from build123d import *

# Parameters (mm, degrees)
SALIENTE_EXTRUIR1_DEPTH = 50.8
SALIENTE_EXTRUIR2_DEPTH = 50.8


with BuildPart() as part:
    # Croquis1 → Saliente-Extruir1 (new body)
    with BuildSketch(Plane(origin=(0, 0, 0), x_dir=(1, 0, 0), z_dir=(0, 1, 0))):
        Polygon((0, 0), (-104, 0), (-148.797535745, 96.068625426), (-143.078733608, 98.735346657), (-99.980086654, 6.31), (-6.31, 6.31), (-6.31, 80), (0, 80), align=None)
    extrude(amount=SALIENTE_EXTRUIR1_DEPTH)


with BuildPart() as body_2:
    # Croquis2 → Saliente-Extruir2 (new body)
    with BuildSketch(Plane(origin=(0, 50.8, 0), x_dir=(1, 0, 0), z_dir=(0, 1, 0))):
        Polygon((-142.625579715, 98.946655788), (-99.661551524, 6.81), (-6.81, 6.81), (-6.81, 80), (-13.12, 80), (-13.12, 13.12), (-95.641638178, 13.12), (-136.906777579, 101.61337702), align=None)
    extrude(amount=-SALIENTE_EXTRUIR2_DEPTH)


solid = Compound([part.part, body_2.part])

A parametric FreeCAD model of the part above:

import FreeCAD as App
import Part
import Sketcher
from FreeCAD import Vector
Q = App.Units.Quantity

doc = App.newDocument("Part")
body = doc.addObject("PartDesign::Body", "Body")

sketch1 = body.newObject("Sketcher::SketchObject", "Sketch")
sketch1.AttachmentSupport = (doc.getObject("XZ_Plane"), [""])
sketch1.MapMode = "FlatFace"
sketch1.addGeometry(Part.LineSegment(Vector(-104, 0, 0), Vector(0, 0, 0)), False)
sketch1.addGeometry(Part.LineSegment(Vector(0, 0, 0), Vector(0, -80, 0)), False)
sketch1.addGeometry(Part.LineSegment(Vector(0, -80, 0), Vector(-6, -80, 0)), False)
sketch1.addGeometry(Part.LineSegment(Vector(-6, -80, 0), Vector(-6, -6, 0)), False)
sketch1.addGeometry(Part.LineSegment(Vector(-6, -6, 0), Vector(-100, -6, 0)), False)
sketch1.addGeometry(Part.LineSegment(Vector(-100, -6, 0), Vector(-143, -99, 0)), False)
sketch1.addGeometry(Part.LineSegment(Vector(-143, -99, 0), Vector(-149, -96, 0)), False)
sketch1.addGeometry(Part.LineSegment(Vector(-149, -96, 0), Vector(-104, 0, 0)), False)
sketch1.addConstraint(Sketcher.Constraint("Coincident", 0, 2, 1, 1))
sketch1.addConstraint(Sketcher.Constraint("Coincident", 1, 2, 2, 1))
sketch1.addConstraint(Sketcher.Constraint("Coincident", 2, 2, 3, 1))
sketch1.addConstraint(Sketcher.Constraint("Coincident", 3, 2, 4, 1))
sketch1.addConstraint(Sketcher.Constraint("Coincident", 4, 2, 5, 1))
sketch1.addConstraint(Sketcher.Constraint("Coincident", 5, 2, 6, 1))
sketch1.addConstraint(Sketcher.Constraint("Coincident", 6, 2, 7, 1))
sketch1.addConstraint(Sketcher.Constraint("Coincident", 7, 2, 0, 1))
sketch1.addConstraint(Sketcher.Constraint("Horizontal", 0))
sketch1.addConstraint(Sketcher.Constraint("Vertical", 1))
sketch1.addConstraint(Sketcher.Constraint("Horizontal", 2))
sketch1.addConstraint(Sketcher.Constraint("Vertical", 3))
sketch1.addConstraint(Sketcher.Constraint("Horizontal", 4))
sketch1.addConstraint(Sketcher.Constraint("Coincident", 0, 2, -1, 1))
sketch1.addConstraint(Sketcher.Constraint("Perpendicular", 5, 6))
sketch1.addConstraint(Sketcher.Constraint("Perpendicular", 6, 7))
sketch1.addConstraint(Sketcher.Constraint("DistanceX", 0, 1, 0, 2, 104.0))
sketch1.addConstraint(Sketcher.Constraint("DistanceY", 1, 2, 1, 1, 80.0))
sketch1.addConstraint(Sketcher.Constraint("Angle", 5, Q("-115 deg")))
sketch1.addConstraint(Sketcher.Constraint("Distance", 7, 106.0))
sketch1.addConstraint(Sketcher.Constraint("DistanceX", 2, 2, 2, 1, 6.31))
sketch1.addConstraint(Sketcher.Constraint("DistanceY", 3, 1, 3, 2, 73.69))
sketch1.addConstraint(Sketcher.Constraint("Distance", 6, 6.31))
pad1 = body.newObject("PartDesign::Pad", "Pad")
pad1.Profile = sketch1
pad1.Length = 50.8
pad1.Reversed = True
body2 = doc.addObject("PartDesign::Body", "Body001")

sketch2 = body2.newObject("Sketcher::SketchObject", "Sketch001")
sketch2.AttachmentSupport = (doc.getObject("XZ_Plane001"), [""])
sketch2.MapMode = "FlatFace"
sketch2.AttachmentOffset = App.Placement(Vector(0, 0, -50.8), App.Rotation())
sketch2.addGeometry(Part.LineSegment(Vector(-143, -99, 0), Vector(-100, -7, 0)), False)
sketch2.addGeometry(Part.LineSegment(Vector(-100, -7, 0), Vector(-7, -7, 0)), False)
sketch2.addGeometry(Part.LineSegment(Vector(-7, -7, 0), Vector(-7, -80, 0)), False)
sketch2.addGeometry(Part.LineSegment(Vector(-7, -80, 0), Vector(-13, -80, 0)), False)
sketch2.addGeometry(Part.LineSegment(Vector(-13, -80, 0), Vector(-13, -13, 0)), False)
sketch2.addGeometry(Part.LineSegment(Vector(-13, -13, 0), Vector(-96, -13, 0)), False)
sketch2.addGeometry(Part.LineSegment(Vector(-96, -13, 0), Vector(-137, -102, 0)), False)
sketch2.addGeometry(Part.LineSegment(Vector(-137, -102, 0), Vector(-143, -99, 0)), False)
sketch2.addConstraint(Sketcher.Constraint("Coincident", 0, 2, 1, 1))
sketch2.addConstraint(Sketcher.Constraint("Coincident", 1, 2, 2, 1))
sketch2.addConstraint(Sketcher.Constraint("Coincident", 2, 2, 3, 1))
sketch2.addConstraint(Sketcher.Constraint("Coincident", 3, 2, 4, 1))
sketch2.addConstraint(Sketcher.Constraint("Coincident", 4, 2, 5, 1))
sketch2.addConstraint(Sketcher.Constraint("Coincident", 5, 2, 6, 1))
sketch2.addConstraint(Sketcher.Constraint("Coincident", 6, 2, 7, 1))
sketch2.addConstraint(Sketcher.Constraint("Coincident", 7, 2, 0, 1))
sketch2.addConstraint(Sketcher.Constraint("Horizontal", 1))
sketch2.addConstraint(Sketcher.Constraint("Vertical", 2))
sketch2.addConstraint(Sketcher.Constraint("Horizontal", 3))
sketch2.addConstraint(Sketcher.Constraint("Vertical", 4))
sketch2.addConstraint(Sketcher.Constraint("Horizontal", 5))
sketch2.addConstraint(Sketcher.Constraint("Parallel", 0, 6))
sketch2.addConstraint(Sketcher.Constraint("Perpendicular", 6, 7))
sketch2.addConstraint(Sketcher.Constraint("Angle", 0, Q("65 deg")))
sketch2.addConstraint(Sketcher.Constraint("DistanceY", 2, 2, -1, 1, 80.0))
sketch2.addConstraint(Sketcher.Constraint("DistanceX", 3, 2, 3, 1, 6.31))
sketch2.addConstraint(Sketcher.Constraint("DistanceY", 2, 2, 2, 1, 73.19))
sketch2.addConstraint(Sketcher.Constraint("DistanceY", 4, 1, 4, 2, 66.88))
sketch2.addConstraint(Sketcher.Constraint("Distance", 7, 6.31))
sketch2.addConstraint(Sketcher.Constraint("DistanceX", 1, 2, -1, 1, 6.81))
sketch2.addConstraint(Sketcher.Constraint("DistanceX", 1, 1, 1, 2, 92.851552))
sketch2.addConstraint(Sketcher.Constraint("Distance", 0, 101.661552))
pad2 = body2.newObject("PartDesign::Pad", "Pad001")
pad2.Profile = sketch2
pad2.Length = 50.8

doc.recompute()
